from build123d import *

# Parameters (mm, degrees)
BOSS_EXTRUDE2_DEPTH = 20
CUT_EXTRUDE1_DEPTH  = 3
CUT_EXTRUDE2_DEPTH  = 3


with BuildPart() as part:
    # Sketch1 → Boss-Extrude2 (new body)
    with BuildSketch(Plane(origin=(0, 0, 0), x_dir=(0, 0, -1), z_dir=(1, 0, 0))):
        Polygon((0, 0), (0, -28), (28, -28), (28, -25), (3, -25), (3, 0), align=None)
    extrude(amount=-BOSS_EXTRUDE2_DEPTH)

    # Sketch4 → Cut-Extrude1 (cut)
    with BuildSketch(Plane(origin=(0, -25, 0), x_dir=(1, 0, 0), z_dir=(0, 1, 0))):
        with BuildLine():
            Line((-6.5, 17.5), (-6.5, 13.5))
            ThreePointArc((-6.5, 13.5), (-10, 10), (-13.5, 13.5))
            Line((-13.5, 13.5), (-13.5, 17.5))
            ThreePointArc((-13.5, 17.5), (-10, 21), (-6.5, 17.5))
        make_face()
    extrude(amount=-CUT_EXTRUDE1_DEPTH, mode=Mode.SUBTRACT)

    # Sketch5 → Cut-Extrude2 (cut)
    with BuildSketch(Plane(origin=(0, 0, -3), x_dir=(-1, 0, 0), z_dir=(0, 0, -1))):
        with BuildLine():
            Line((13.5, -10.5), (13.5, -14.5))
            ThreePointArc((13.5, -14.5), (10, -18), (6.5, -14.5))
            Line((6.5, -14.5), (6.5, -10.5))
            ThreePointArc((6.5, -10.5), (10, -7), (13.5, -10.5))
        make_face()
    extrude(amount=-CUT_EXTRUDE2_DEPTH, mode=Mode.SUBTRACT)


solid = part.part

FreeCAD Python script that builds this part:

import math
import FreeCAD as App
import Part
import Sketcher
from FreeCAD import Vector

doc = App.newDocument("Part")
body = doc.addObject("PartDesign::Body", "Body")

# Sketch on YZ plane
sketch1 = body.newObject("Sketcher::SketchObject", "Sketch")
sketch1.AttachmentSupport = (doc.getObject("YZ_Plane"), [""])
sketch1.MapMode = "FlatFace"
sketch1.addGeometry(Part.LineSegment(Vector(0, 0, 0), Vector(-28, 0, 0)), False)
sketch1.addGeometry(Part.LineSegment(Vector(-28, 0, 0), Vector(-28, -28, 0)), False)
sketch1.addGeometry(Part.LineSegment(Vector(-28, -28, 0), Vector(-25, -28, 0)), False)
sketch1.addGeometry(Part.LineSegment(Vector(-25, -28, 0), Vector(-25, -3, 0)), False)
sketch1.addGeometry(Part.LineSegment(Vector(-25, -3, 0), Vector(0, -3, 0)), False)
sketch1.addGeometry(Part.LineSegment(Vector(0, -3, 0), Vector(0, 0, 0)), False)
sketch1.addConstraint(Sketcher.Constraint("Coincident", 0, 2, 1, 1))
sketch1.addConstraint(Sketcher.Constraint("Coincident", 1, 2, 2, 1))
sketch1.addConstraint(Sketcher.Constraint("Coincident", 2, 2, 3, 1))
sketch1.addConstraint(Sketcher.Constraint("Coincident", 3, 2, 4, 1))
sketch1.addConstraint(Sketcher.Constraint("Coincident", 4, 2, 5, 1))
sketch1.addConstraint(Sketcher.Constraint("Coincident", 5, 2, 0, 1))
sketch1.addConstraint(Sketcher.Constraint("Horizontal", 0))
sketch1.addConstraint(Sketcher.Constraint("Vertical", 1))
sketch1.addConstraint(Sketcher.Constraint("Horizontal", 2))
sketch1.addConstraint(Sketcher.Constraint("Vertical", 3))
sketch1.addConstraint(Sketcher.Constraint("Horizontal", 4))
sketch1.addConstraint(Sketcher.Constraint("Vertical", 5))
sketch1.addConstraint(Sketcher.Constraint("Coincident", 5, 2, -1, 1))
sketch1.addConstraint(Sketcher.Constraint("Equal", 0, 1))
sketch1.addConstraint(Sketcher.Constraint("Equal", 4, 3))
sketch1.addConstraint(Sketcher.Constraint("DistanceX", 0, 2, 0, 1, 28.0))
sketch1.addConstraint(Sketcher.Constraint("DistanceX", 2, 1, 2, 2, 3.0))
pad1 = body.newObject("PartDesign::Pad", "Pad")
pad1.Profile = sketch1
pad1.Length = 20
pad1.Reversed = True

# Sketch on XZ plane
sketch2 = body.newObject("Sketcher::SketchObject", "Sketch001")
sketch2.AttachmentSupport = (doc.getObject("XZ_Plane"), [""])
sketch2.MapMode = "FlatFace"
sketch2.AttachmentOffset = App.Placement(Vector(0, 0, 25), App.Rotation())
sketch2.addGeometry(Part.LineSegment(Vector(-6.5, -13.5, 0), Vector(-6.5, -17.5, 0)), False)
sketch2.addGeometry(Part.ArcOfCircle(Part.Circle(Vector(-10, -17.5, 0), Vector(0, 0, 1), 3.5), math.radians(180), math.radians(360)), False)
sketch2.addGeometry(Part.LineSegment(Vector(-13.5, -17.5, 0), Vector(-13.5, -13.5, 0)), False)
sketch2.addGeometry(Part.ArcOfCircle(Part.Circle(Vector(-10, -13.5, 0), Vector(0, 0, 1), 3.5), math.radians(0), math.radians(180)), False)
sketch2.addConstraint(Sketcher.Constraint("Tangent", 0, 2, 1, 2))
sketch2.addConstraint(Sketcher.Constraint("Tangent", 1, 1, 2, 1))
sketch2.addConstraint(Sketcher.Constraint("Tangent", 2, 2, 3, 2))
sketch2.addConstraint(Sketcher.Constraint("Tangent", 3, 1, 0, 1))
sketch2.addConstraint(Sketcher.Constraint("Vertical", 0))
sketch2.addConstraint(Sketcher.Constraint("Vertical", 2))
sketch2.addConstraint(Sketcher.Constraint("Radius", 1, 3.5))
sketch2.addConstraint(Sketcher.Constraint("DistanceY", 0, 2, 0, 1, 4.0))
sketch2.addConstraint(Sketcher.Constraint("DistanceX", 1, 3, -1, 1, 10.0))
sketch2.addConstraint(Sketcher.Constraint("DistanceY", 1, 3, -1, 1, 17.5))
pocket1 = body.newObject("PartDesign::Pocket", "Pocket")
pocket1.Profile = sketch2
pocket1.Length = 3
pocket1.Reversed = True

# Sketch on XY plane
sketch3 = body.newObject("Sketcher::SketchObject", "Sketch002")
sketch3.AttachmentSupport = (doc.getObject("XY_Plane"), [""])
sketch3.MapMode = "FlatFace"
sketch3.AttachmentOffset = App.Placement(Vector(0, 0, -3), App.Rotation())
sketch3.addGeometry(Part.LineSegment(Vector(-13.5, -14.5, 0), Vector(-13.5, -10.5, 0)), False)
sketch3.addGeometry(Part.ArcOfCircle(Part.Circle(Vector(-10, -10.5, 0), Vector(0, 0, 1), 3.5), math.radians(0), math.radians(180)), False)
sketch3.addGeometry(Part.LineSegment(Vector(-6.5, -10.5, 0), Vector(-6.5, -14.5, 0)), False)
sketch3.addGeometry(Part.ArcOfCircle(Part.Circle(Vector(-10, -14.5, 0), Vector(0, 0, 1), 3.5), math.radians(180), math.radians(360)), False)
sketch3.addConstraint(Sketcher.Constraint("Tangent", 0, 2, 1, 2))
sketch3.addConstraint(Sketcher.Constraint("Tangent", 1, 1, 2, 1))
sketch3.addConstraint(Sketcher.Constraint("Tangent", 2, 2, 3, 2))
sketch3.addConstraint(Sketcher.Constraint("Tangent", 3, 1, 0, 1))
sketch3.addConstraint(Sketcher.Constraint("Vertical", 0))
sketch3.addConstraint(Sketcher.Constraint("Vertical", 2))
sketch3.addConstraint(Sketcher.Constraint("Radius", 1, 3.5))
sketch3.addConstraint(Sketcher.Constraint("DistanceY", 0, 1, 0, 2, 4.0))
sketch3.addConstraint(Sketcher.Constraint("DistanceX", 1, 3, -1, 1, 10.0))
sketch3.addConstraint(Sketcher.Constraint("DistanceY", 1, 3, -1, 1, 10.5))
pocket2 = body.newObject("PartDesign::Pocket", "Pocket001")
pocket2.Profile = sketch3
pocket2.Length = 3
pocket2.Reversed = True

doc.recompute()
